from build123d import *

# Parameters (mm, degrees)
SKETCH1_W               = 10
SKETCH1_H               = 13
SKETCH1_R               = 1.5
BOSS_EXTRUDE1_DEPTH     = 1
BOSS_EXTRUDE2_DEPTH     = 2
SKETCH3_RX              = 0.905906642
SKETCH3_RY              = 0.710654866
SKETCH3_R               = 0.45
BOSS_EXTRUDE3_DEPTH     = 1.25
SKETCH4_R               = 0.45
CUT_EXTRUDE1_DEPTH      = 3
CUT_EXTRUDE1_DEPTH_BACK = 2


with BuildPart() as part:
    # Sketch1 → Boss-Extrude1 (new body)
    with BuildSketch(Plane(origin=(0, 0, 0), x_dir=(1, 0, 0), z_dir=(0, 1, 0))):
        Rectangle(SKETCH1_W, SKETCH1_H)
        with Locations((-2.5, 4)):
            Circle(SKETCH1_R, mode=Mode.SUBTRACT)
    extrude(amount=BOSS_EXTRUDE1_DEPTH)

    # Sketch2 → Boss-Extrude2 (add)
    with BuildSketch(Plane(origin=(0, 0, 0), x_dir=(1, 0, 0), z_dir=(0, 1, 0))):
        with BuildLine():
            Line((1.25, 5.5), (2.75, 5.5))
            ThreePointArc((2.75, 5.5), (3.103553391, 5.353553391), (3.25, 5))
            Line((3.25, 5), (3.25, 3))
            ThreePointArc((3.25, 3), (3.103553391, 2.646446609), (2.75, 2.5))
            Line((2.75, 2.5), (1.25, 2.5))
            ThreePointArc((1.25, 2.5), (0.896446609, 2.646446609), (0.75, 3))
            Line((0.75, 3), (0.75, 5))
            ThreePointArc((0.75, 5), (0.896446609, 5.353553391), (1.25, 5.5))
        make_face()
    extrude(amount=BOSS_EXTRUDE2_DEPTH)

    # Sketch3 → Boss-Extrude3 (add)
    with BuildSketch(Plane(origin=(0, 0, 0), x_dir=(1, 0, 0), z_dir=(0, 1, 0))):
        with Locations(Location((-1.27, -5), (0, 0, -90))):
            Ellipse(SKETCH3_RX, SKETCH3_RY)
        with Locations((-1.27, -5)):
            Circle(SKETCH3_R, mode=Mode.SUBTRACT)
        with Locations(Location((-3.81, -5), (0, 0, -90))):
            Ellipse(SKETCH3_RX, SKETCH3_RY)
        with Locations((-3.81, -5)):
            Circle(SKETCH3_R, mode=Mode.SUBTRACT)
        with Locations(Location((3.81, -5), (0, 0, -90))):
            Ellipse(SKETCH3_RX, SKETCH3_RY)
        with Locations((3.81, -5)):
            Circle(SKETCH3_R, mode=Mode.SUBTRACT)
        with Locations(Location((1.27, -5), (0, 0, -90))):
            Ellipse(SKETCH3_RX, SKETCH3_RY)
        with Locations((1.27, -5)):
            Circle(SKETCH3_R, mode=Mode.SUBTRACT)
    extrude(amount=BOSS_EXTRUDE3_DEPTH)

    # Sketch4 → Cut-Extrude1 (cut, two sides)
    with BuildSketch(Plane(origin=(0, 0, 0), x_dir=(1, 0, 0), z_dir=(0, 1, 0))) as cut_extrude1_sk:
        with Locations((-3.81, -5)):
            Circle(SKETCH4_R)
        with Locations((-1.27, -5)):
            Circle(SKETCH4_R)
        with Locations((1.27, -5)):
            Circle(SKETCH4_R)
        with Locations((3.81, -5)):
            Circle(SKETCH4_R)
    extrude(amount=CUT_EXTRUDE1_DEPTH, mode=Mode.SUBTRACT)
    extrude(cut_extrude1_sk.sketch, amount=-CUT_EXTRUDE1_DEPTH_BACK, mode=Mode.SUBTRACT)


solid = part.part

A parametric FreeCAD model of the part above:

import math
import FreeCAD as App
import Part
import Sketcher

V = App.Vector


def add_polygon(sketch, points):
    """Adds a closed chain of lines whose ends are joined by coincident constraints."""
    first, n = sketch.GeometryCount, len(points)
    for a, b in zip(points, points[1:] + points[:1]):
        sketch.addGeometry(Part.LineSegment(App.Vector(*a, 0), App.Vector(*b, 0)), False)
    for i in range(n):
        sketch.addConstraint(Sketcher.Constraint("Coincident", first + i, 2, first + (i + 1) % n, 1))

doc = App.newDocument("Part")
body = doc.addObject("PartDesign::Body", "Body")

sketch1 = doc.addObject("Sketcher::SketchObject", "Sketch")
body.addObject(sketch1)
sketch1.AttachmentSupport = (doc.XZ_Plane, [""])
sketch1.MapMode = "FlatFace"
add_polygon(sketch1, [(-5, -6.5), (-5, 6.5), (5, 6.5), (5, -6.5)])
sketch1.addGeometry(Part.Circle(V(-2.5, -4, 0), V(0, 0, 1), 1.5), False)
sketch1.addConstraint(Sketcher.Constraint("Vertical", 0))
sketch1.addConstraint(Sketcher.Constraint("Horizontal", 1))
sketch1.addConstraint(Sketcher.Constraint("Vertical", 2))
sketch1.addConstraint(Sketcher.Constraint("Horizontal", 3))
sketch1.addConstraint(Sketcher.Constraint("Symmetric", 0, 2, 2, 2, -1, 1))
sketch1.addConstraint(Sketcher.Constraint("Diameter", 4, 3.0))
sketch1.addConstraint(Sketcher.Constraint("DistanceX", 1, 1, 1, 2, 10.0))
sketch1.addConstraint(Sketcher.Constraint("DistanceY", 0, 1, 0, 2, 13.0))
sketch1.addConstraint(Sketcher.Constraint("DistanceY", 4, 3, -1, 1, 4.0))
sketch1.addConstraint(Sketcher.Constraint("DistanceX", 4, 3, -1, 1, 2.5))
pad1 = doc.addObject("PartDesign::Pad", "Pad")
body.addObject(pad1)
pad1.Profile = sketch1
pad1.Length = 1
pad1.Reversed = True

sketch2 = doc.addObject("Sketcher::SketchObject", "Sketch001")
body.addObject(sketch2)
sketch2.AttachmentSupport = (doc.XZ_Plane, [""])
sketch2.MapMode = "FlatFace"
sketch2.addGeometry(Part.LineSegment(V(2.75, -5.5, 0), V(1.25, -5.5, 0)), False)
sketch2.addGeometry(Part.ArcOfCircle(Part.Circle(V(1.25, -5, 0), V(0, 0, 1), 0.5), math.radians(180), math.radians(270)), False)
sketch2.addGeometry(Part.LineSegment(V(0.75, -5, 0), V(0.75, -3, 0)), False)
sketch2.addGeometry(Part.ArcOfCircle(Part.Circle(V(1.25, -3, 0), V(0, 0, 1), 0.5), math.radians(90), math.radians(180)), False)
sketch2.addGeometry(Part.LineSegment(V(1.25, -2.5, 0), V(2.75, -2.5, 0)), False)
sketch2.addGeometry(Part.ArcOfCircle(Part.Circle(V(2.75, -3, 0), V(0, 0, 1), 0.5), math.radians(0), math.radians(90)), False)
sketch2.addGeometry(Part.LineSegment(V(3.25, -3, 0), V(3.25, -5, 0)), False)
sketch2.addGeometry(Part.ArcOfCircle(Part.Circle(V(2.75, -5, 0), V(0, 0, 1), 0.5), math.radians(-90), math.radians(0)), False)
sketch2.addConstraint(Sketcher.Constraint("Tangent", 0, 2, 1, 2))
sketch2.addConstraint(Sketcher.Constraint("Tangent", 1, 1, 2, 1))
sketch2.addConstraint(Sketcher.Constraint("Tangent", 2, 2, 3, 2))
sketch2.addConstraint(Sketcher.Constraint("Tangent", 3, 1, 4, 1))
sketch2.addConstraint(Sketcher.Constraint("Tangent", 4, 2, 5, 2))
sketch2.addConstraint(Sketcher.Constraint("Tangent", 5, 1, 6, 1))
sketch2.addConstraint(Sketcher.Constraint("Tangent", 6, 2, 7, 2))
sketch2.addConstraint(Sketcher.Constraint("Tangent", 7, 1, 0, 1))
sketch2.addConstraint(Sketcher.Constraint("Horizontal", 0))
sketch2.addConstraint(Sketcher.Constraint("Vertical", 2))
sketch2.addConstraint(Sketcher.Constraint("Horizontal", 4))
sketch2.addConstraint(Sketcher.Constraint("Vertical", 6))
sketch2.addConstraint(Sketcher.Constraint("Equal", 1, 3))
sketch2.addConstraint(Sketcher.Constraint("Equal", 3, 5))
sketch2.addConstraint(Sketcher.Constraint("Equal", 5, 7))
sketch2.addConstraint(Sketcher.Constraint("Radius", 1, 0.5))
sketch2.addConstraint(Sketcher.Constraint("DistanceY", 2, 1, 2, 2, 2.0))
sketch2.addConstraint(Sketcher.Constraint("DistanceX", 0, 2, 0, 1, 1.5))
sketch2.addConstraint(Sketcher.Constraint("DistanceY", 1, 3, -1, 1, 5.0))
sketch2.addConstraint(Sketcher.Constraint("DistanceX", -1, 1, 1, 3, 1.25))
pad2 = doc.addObject("PartDesign::Pad", "Pad001")
body.addObject(pad2)
pad2.Profile = sketch2
pad2.Length = 2
pad2.Reversed = True

sketch3 = doc.addObject("Sketcher::SketchObject", "Sketch002")
body.addObject(sketch3)
sketch3.AttachmentSupport = (doc.XZ_Plane, [""])
sketch3.MapMode = "FlatFace"
sketch3.addGeometry(Part.Ellipse(V(-1.27, 5.905907, 0), V(-1.980655, 5, 0), V(-1.27, 5, 0)), False)
sketch3.addGeometry(Part.Circle(V(-1.27, 5, 0), V(0, 0, 1), 0.45), False)
sketch3.addGeometry(Part.Ellipse(V(-3.81, 5.905907, 0), V(-4.520655, 5, 0), V(-3.81, 5, 0)), False)
sketch3.addGeometry(Part.Circle(V(-3.81, 5, 0), V(0, 0, 1), 0.45), False)
sketch3.addGeometry(Part.Ellipse(V(3.81, 5.905907, 0), V(3.099345, 5, 0), V(3.81, 5, 0)), False)
sketch3.addGeometry(Part.Circle(V(3.81, 5, 0), V(0, 0, 1), 0.45), False)
sketch3.addGeometry(Part.Ellipse(V(1.27, 5.905907, 0), V(0.559345, 5, 0), V(1.27, 5, 0)), False)
sketch3.addGeometry(Part.Circle(V(1.27, 5, 0), V(0, 0, 1), 0.45), False)
sketch3.addConstraint(Sketcher.Constraint("Block", 0))
sketch3.addConstraint(Sketcher.Constraint("Block", 2))
sketch3.addConstraint(Sketcher.Constraint("Block", 4))
sketch3.addConstraint(Sketcher.Constraint("Block", 6))
sketch3.addConstraint(Sketcher.Constraint("Equal", 1, 3))
sketch3.addConstraint(Sketcher.Constraint("Equal", 3, 5))
sketch3.addConstraint(Sketcher.Constraint("Equal", 5, 7))
sketch3.addConstraint(Sketcher.Constraint("Symmetric", 3, 3, 5, 3, -2))
sketch3.addConstraint(Sketcher.Constraint("Symmetric", 1, 3, 7, 3, -2))
sketch3.addConstraint(Sketcher.Constraint("Horizontal", 1, 3, 3, 3))
sketch3.addConstraint(Sketcher.Constraint("Diameter", 1, 0.9))
sketch3.addConstraint(Sketcher.Constraint("DistanceY", -1, 1, 1, 3, 5.0))
sketch3.addConstraint(Sketcher.Constraint("DistanceX", 1, 3, -1, 1, 1.27))
sketch3.addConstraint(Sketcher.Constraint("DistanceX", 3, 3, -1, 1, 3.81))
pad3 = doc.addObject("PartDesign::Pad", "Pad002")
body.addObject(pad3)
pad3.Profile = sketch3
pad3.Length = 1.25
pad3.Reversed = True

sketch4 = doc.addObject("Sketcher::SketchObject", "Sketch003")
body.addObject(sketch4)
sketch4.AttachmentSupport = (doc.XZ_Plane, [""])
sketch4.MapMode = "FlatFace"
sketch4.addGeometry(Part.Circle(V(-3.81, 5, 0), V(0, 0, 1), 0.45), False)
sketch4.addGeometry(Part.Circle(V(-1.27, 5, 0), V(0, 0, 1), 0.45), False)
sketch4.addGeometry(Part.Circle(V(1.27, 5, 0), V(0, 0, 1), 0.45), False)
sketch4.addGeometry(Part.Circle(V(3.81, 5, 0), V(0, 0, 1), 0.45), False)
sketch4.addConstraint(Sketcher.Constraint("Equal", 0, 1))
sketch4.addConstraint(Sketcher.Constraint("Equal", 1, 2))
sketch4.addConstraint(Sketcher.Constraint("Equal", 2, 3))
sketch4.addConstraint(Sketcher.Constraint("Symmetric", 1, 3, 2, 3, -2))
sketch4.addConstraint(Sketcher.Constraint("Symmetric", 0, 3, 3, 3, -2))
sketch4.addConstraint(Sketcher.Constraint("Horizontal", 0, 3, 1, 3))
sketch4.addConstraint(Sketcher.Constraint("Diameter", 0, 0.9))
sketch4.addConstraint(Sketcher.Constraint("DistanceY", -1, 1, 0, 3, 5.0))
sketch4.addConstraint(Sketcher.Constraint("DistanceX", 0, 3, -1, 1, 3.81))
sketch4.addConstraint(Sketcher.Constraint("DistanceX", 1, 3, -1, 1, 1.27))
pocket1 = doc.addObject("PartDesign::Pocket", "Pocket")
body.addObject(pocket1)
pocket1.Profile = sketch4
pocket1.Type = "ThroughAll"
pocket1.Midplane = True

doc.recompute()
